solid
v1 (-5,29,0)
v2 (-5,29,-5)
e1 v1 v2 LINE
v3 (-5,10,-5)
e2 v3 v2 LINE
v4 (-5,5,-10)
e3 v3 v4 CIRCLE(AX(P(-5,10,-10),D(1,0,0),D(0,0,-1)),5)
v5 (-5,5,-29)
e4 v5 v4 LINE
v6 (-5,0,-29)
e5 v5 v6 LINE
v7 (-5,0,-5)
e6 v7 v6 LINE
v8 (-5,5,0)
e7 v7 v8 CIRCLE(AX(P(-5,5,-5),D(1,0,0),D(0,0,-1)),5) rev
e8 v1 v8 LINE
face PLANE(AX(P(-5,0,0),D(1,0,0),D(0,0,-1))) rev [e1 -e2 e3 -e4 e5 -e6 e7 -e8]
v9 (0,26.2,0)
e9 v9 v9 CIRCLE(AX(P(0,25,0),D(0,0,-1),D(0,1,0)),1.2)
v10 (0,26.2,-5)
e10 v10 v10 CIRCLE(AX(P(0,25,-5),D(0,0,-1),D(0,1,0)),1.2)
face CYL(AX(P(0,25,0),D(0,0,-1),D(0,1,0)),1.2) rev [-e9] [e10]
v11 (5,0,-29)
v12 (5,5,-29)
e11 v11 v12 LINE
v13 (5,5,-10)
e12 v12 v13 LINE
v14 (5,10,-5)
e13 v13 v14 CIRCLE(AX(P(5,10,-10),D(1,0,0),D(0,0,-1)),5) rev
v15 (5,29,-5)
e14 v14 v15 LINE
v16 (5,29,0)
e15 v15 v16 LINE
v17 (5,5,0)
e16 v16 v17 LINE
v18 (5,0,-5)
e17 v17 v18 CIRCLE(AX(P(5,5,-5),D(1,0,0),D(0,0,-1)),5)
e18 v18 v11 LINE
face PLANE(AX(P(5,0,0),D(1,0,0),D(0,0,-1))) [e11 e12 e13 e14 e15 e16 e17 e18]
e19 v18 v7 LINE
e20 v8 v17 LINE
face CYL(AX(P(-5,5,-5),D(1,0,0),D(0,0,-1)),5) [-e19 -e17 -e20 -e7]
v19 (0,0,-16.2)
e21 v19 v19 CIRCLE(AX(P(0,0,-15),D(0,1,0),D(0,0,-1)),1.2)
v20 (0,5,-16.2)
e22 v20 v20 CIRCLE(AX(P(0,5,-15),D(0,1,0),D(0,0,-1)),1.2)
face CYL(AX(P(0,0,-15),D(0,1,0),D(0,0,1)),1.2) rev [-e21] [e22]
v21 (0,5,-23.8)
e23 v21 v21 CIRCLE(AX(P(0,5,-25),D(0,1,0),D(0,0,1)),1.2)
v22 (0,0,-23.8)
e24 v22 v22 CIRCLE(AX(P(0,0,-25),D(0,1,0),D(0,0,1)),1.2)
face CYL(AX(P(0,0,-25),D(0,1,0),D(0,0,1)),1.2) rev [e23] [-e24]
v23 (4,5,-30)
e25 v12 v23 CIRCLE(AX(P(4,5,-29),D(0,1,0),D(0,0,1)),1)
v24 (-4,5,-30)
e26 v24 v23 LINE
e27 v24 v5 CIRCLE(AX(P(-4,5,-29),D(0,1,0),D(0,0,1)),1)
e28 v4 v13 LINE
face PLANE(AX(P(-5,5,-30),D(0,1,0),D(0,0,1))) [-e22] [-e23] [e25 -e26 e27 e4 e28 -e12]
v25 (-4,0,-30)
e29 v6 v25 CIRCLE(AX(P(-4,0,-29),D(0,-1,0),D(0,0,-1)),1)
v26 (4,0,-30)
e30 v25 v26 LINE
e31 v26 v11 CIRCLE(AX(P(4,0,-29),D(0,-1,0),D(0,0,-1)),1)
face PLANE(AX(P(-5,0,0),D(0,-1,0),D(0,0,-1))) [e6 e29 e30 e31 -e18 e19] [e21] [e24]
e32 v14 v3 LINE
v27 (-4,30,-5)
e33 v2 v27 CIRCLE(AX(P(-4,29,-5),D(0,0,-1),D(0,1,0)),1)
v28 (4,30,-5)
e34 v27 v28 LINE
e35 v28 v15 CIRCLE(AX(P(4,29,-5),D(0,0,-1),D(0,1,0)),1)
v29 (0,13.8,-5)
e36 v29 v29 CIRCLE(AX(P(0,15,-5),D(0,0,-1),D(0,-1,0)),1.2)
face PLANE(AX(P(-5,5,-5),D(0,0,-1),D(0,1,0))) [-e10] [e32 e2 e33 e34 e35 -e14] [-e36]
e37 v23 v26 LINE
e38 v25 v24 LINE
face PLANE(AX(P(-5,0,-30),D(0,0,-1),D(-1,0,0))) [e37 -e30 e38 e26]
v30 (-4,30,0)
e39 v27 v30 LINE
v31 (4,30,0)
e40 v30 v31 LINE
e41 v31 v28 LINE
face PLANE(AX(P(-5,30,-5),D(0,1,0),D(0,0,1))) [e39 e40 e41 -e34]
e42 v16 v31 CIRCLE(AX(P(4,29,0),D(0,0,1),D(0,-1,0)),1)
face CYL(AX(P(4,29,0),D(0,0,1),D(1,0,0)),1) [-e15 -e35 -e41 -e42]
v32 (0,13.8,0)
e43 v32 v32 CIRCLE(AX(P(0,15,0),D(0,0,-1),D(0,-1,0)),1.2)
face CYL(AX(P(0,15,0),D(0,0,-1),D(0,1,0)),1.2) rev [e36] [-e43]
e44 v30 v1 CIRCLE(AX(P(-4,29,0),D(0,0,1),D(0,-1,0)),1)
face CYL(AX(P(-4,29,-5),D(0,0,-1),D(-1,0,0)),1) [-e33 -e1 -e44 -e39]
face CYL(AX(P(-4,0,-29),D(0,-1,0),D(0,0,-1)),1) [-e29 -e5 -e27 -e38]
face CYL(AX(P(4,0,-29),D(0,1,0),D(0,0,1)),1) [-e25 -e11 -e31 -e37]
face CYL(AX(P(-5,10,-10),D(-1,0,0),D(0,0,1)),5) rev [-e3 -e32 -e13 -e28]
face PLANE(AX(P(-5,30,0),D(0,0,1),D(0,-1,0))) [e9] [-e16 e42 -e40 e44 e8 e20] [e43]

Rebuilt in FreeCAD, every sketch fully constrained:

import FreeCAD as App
import Part
import Sketcher

V = App.Vector


def edges_at(feature, points):
    """Names of the edges that pass closest to the given points."""
    edges = feature.Shape.Edges
    near = lambda p: min(range(len(edges)), key=lambda i: edges[i].distToShape(Part.Vertex(*p))[0])
    return sorted({f"Edge{near(p) + 1}" for p in points})

doc = App.newDocument("Part")
body = doc.addObject("PartDesign::Body", "Body")

# Sketch on YZ plane
sketch1 = doc.addObject("Sketcher::SketchObject", "Sketch")
body.addObject(sketch1)
sketch1.AttachmentSupport = (doc.YZ_Plane, [""])
sketch1.MapMode = "FlatFace"
sketch1.addGeometry([
    Part.LineSegment(V(30, 0, 0), V(0, 0, 0)),  # 0
    Part.LineSegment(V(0, 0, 0), V(0, -30, 0)),  # 1
    Part.LineSegment(V(0, -30, 0), V(5, -30, 0)),  # 2
    Part.LineSegment(V(5, -30, 0), V(5, -5, 0)),  # 3
    Part.LineSegment(V(5, -5, 0), V(30, -5, 0)),  # 4
    Part.LineSegment(V(30, -5, 0), V(30, 0, 0)),  # 5
], False)
sketch1.addConstraint([
    Sketcher.Constraint("Coincident", 0, 2, 1, 1),
    Sketcher.Constraint("Coincident", 1, 2, 2, 1),
    Sketcher.Constraint("Coincident", 2, 2, 3, 1),
    Sketcher.Constraint("Coincident", 3, 2, 4, 1),
    Sketcher.Constraint("Coincident", 4, 2, 5, 1),
    Sketcher.Constraint("Coincident", 5, 2, 0, 1),
    Sketcher.Constraint("Horizontal", 0),
    Sketcher.Constraint("Vertical", 1),
    Sketcher.Constraint("Horizontal", 2),
    Sketcher.Constraint("Vertical", 3),
    Sketcher.Constraint("Horizontal", 4),
    Sketcher.Constraint("Vertical", 5),
    Sketcher.Constraint("Coincident", 0, 2, -1, 1),
    Sketcher.Constraint("Equal", 0, 1),
    Sketcher.Constraint("Equal", 4, 3),
    Sketcher.Constraint("DistanceX", 0, 2, 0, 1, 30.0),
    Sketcher.Constraint("DistanceX", 2, 1, 2, 2, 5.0),
])
pad1 = doc.addObject("PartDesign::Pad", "Pad")
body.addObject(pad1)
pad1.Profile = sketch1
pad1.Type = "TwoLengths"
pad1.Length = 5
pad1.Length2 = 5

# Sketch on XZ plane
sketch2 = doc.addObject("Sketcher::SketchObject", "Sketch001")
body.addObject(sketch2)
sketch2.AttachmentSupport = (doc.XZ_Plane, [""])
sketch2.MapMode = "FlatFace"
sketch2.AttachmentOffset = App.Placement(V(0, 0, -5), App.Rotation())
sketch2.addGeometry([
    Part.Circle(V(0, -25, 0), V(0, 0, 1), 1.2),
    Part.Circle(V(0, -15, 0), V(0, 0, 1), 1.2),
], False)
sketch2.addConstraint([
    Sketcher.Constraint("Equal", 0, 1),
    Sketcher.Constraint("PointOnObject", 0, 3, -2),
    Sketcher.Constraint("PointOnObject", 1, 3, -2),
    Sketcher.Constraint("Diameter", 0, 2.4),
    Sketcher.Constraint("DistanceY", 0, 3, -1, 1, 25.0),
    Sketcher.Constraint("DistanceY", 1, 3, -1, 1, 15.0),
])
pocket1 = doc.addObject("PartDesign::Pocket", "Pocket")
body.addObject(pocket1)
pocket1.Profile = sketch2
pocket1.Type = "ThroughAll"
pocket1.Reversed = True

# Sketch on XY plane
sketch3 = doc.addObject("Sketcher::SketchObject", "Sketch002")
body.addObject(sketch3)
sketch3.AttachmentSupport = (doc.XY_Plane, [""])
sketch3.MapMode = "FlatFace"
sketch3.AttachmentOffset = App.Placement(V(0, 0, -5), App.Rotation())
sketch3.addGeometry([
    Part.Circle(V(0, 25, 0), V(0, 0, 1), 1.2),
    Part.Circle(V(0, 15, 0), V(0, 0, 1), 1.2),
], False)
sketch3.addConstraint([
    Sketcher.Constraint("Equal", 0, 1),
    Sketcher.Constraint("PointOnObject", 0, 3, -2),
    Sketcher.Constraint("PointOnObject", 1, 3, -2),
    Sketcher.Constraint("Diameter", 0, 2.4),
    Sketcher.Constraint("DistanceY", -1, 1, 0, 3, 25.0),
    Sketcher.Constraint("DistanceY", -1, 1, 1, 3, 15.0),
])
pocket2 = doc.addObject("PartDesign::Pocket", "Pocket001")
body.addObject(pocket2)
pocket2.Profile = sketch3
pocket2.Type = "ThroughAll"
pocket2.Reversed = True
doc.recompute()

fillet = doc.addObject("PartDesign::Fillet", "Fillet")
body.addObject(fillet)
fillet.Base = (pocket2, edges_at(pocket2, [
    (-5, 2.5, -30),
    (5, 30, -2.5),
    (5, 2.5, -30),
    (-5, 30, -2.5),
]))
fillet.Radius = 1
doc.recompute()

fillet2 = doc.addObject("PartDesign::Fillet", "Fillet001")
body.addObject(fillet2)
fillet2.Base = (fillet, edges_at(fillet, [(0, 5, -5), (0, 0, 0)]))
fillet2.Radius = 5

doc.recompute()
